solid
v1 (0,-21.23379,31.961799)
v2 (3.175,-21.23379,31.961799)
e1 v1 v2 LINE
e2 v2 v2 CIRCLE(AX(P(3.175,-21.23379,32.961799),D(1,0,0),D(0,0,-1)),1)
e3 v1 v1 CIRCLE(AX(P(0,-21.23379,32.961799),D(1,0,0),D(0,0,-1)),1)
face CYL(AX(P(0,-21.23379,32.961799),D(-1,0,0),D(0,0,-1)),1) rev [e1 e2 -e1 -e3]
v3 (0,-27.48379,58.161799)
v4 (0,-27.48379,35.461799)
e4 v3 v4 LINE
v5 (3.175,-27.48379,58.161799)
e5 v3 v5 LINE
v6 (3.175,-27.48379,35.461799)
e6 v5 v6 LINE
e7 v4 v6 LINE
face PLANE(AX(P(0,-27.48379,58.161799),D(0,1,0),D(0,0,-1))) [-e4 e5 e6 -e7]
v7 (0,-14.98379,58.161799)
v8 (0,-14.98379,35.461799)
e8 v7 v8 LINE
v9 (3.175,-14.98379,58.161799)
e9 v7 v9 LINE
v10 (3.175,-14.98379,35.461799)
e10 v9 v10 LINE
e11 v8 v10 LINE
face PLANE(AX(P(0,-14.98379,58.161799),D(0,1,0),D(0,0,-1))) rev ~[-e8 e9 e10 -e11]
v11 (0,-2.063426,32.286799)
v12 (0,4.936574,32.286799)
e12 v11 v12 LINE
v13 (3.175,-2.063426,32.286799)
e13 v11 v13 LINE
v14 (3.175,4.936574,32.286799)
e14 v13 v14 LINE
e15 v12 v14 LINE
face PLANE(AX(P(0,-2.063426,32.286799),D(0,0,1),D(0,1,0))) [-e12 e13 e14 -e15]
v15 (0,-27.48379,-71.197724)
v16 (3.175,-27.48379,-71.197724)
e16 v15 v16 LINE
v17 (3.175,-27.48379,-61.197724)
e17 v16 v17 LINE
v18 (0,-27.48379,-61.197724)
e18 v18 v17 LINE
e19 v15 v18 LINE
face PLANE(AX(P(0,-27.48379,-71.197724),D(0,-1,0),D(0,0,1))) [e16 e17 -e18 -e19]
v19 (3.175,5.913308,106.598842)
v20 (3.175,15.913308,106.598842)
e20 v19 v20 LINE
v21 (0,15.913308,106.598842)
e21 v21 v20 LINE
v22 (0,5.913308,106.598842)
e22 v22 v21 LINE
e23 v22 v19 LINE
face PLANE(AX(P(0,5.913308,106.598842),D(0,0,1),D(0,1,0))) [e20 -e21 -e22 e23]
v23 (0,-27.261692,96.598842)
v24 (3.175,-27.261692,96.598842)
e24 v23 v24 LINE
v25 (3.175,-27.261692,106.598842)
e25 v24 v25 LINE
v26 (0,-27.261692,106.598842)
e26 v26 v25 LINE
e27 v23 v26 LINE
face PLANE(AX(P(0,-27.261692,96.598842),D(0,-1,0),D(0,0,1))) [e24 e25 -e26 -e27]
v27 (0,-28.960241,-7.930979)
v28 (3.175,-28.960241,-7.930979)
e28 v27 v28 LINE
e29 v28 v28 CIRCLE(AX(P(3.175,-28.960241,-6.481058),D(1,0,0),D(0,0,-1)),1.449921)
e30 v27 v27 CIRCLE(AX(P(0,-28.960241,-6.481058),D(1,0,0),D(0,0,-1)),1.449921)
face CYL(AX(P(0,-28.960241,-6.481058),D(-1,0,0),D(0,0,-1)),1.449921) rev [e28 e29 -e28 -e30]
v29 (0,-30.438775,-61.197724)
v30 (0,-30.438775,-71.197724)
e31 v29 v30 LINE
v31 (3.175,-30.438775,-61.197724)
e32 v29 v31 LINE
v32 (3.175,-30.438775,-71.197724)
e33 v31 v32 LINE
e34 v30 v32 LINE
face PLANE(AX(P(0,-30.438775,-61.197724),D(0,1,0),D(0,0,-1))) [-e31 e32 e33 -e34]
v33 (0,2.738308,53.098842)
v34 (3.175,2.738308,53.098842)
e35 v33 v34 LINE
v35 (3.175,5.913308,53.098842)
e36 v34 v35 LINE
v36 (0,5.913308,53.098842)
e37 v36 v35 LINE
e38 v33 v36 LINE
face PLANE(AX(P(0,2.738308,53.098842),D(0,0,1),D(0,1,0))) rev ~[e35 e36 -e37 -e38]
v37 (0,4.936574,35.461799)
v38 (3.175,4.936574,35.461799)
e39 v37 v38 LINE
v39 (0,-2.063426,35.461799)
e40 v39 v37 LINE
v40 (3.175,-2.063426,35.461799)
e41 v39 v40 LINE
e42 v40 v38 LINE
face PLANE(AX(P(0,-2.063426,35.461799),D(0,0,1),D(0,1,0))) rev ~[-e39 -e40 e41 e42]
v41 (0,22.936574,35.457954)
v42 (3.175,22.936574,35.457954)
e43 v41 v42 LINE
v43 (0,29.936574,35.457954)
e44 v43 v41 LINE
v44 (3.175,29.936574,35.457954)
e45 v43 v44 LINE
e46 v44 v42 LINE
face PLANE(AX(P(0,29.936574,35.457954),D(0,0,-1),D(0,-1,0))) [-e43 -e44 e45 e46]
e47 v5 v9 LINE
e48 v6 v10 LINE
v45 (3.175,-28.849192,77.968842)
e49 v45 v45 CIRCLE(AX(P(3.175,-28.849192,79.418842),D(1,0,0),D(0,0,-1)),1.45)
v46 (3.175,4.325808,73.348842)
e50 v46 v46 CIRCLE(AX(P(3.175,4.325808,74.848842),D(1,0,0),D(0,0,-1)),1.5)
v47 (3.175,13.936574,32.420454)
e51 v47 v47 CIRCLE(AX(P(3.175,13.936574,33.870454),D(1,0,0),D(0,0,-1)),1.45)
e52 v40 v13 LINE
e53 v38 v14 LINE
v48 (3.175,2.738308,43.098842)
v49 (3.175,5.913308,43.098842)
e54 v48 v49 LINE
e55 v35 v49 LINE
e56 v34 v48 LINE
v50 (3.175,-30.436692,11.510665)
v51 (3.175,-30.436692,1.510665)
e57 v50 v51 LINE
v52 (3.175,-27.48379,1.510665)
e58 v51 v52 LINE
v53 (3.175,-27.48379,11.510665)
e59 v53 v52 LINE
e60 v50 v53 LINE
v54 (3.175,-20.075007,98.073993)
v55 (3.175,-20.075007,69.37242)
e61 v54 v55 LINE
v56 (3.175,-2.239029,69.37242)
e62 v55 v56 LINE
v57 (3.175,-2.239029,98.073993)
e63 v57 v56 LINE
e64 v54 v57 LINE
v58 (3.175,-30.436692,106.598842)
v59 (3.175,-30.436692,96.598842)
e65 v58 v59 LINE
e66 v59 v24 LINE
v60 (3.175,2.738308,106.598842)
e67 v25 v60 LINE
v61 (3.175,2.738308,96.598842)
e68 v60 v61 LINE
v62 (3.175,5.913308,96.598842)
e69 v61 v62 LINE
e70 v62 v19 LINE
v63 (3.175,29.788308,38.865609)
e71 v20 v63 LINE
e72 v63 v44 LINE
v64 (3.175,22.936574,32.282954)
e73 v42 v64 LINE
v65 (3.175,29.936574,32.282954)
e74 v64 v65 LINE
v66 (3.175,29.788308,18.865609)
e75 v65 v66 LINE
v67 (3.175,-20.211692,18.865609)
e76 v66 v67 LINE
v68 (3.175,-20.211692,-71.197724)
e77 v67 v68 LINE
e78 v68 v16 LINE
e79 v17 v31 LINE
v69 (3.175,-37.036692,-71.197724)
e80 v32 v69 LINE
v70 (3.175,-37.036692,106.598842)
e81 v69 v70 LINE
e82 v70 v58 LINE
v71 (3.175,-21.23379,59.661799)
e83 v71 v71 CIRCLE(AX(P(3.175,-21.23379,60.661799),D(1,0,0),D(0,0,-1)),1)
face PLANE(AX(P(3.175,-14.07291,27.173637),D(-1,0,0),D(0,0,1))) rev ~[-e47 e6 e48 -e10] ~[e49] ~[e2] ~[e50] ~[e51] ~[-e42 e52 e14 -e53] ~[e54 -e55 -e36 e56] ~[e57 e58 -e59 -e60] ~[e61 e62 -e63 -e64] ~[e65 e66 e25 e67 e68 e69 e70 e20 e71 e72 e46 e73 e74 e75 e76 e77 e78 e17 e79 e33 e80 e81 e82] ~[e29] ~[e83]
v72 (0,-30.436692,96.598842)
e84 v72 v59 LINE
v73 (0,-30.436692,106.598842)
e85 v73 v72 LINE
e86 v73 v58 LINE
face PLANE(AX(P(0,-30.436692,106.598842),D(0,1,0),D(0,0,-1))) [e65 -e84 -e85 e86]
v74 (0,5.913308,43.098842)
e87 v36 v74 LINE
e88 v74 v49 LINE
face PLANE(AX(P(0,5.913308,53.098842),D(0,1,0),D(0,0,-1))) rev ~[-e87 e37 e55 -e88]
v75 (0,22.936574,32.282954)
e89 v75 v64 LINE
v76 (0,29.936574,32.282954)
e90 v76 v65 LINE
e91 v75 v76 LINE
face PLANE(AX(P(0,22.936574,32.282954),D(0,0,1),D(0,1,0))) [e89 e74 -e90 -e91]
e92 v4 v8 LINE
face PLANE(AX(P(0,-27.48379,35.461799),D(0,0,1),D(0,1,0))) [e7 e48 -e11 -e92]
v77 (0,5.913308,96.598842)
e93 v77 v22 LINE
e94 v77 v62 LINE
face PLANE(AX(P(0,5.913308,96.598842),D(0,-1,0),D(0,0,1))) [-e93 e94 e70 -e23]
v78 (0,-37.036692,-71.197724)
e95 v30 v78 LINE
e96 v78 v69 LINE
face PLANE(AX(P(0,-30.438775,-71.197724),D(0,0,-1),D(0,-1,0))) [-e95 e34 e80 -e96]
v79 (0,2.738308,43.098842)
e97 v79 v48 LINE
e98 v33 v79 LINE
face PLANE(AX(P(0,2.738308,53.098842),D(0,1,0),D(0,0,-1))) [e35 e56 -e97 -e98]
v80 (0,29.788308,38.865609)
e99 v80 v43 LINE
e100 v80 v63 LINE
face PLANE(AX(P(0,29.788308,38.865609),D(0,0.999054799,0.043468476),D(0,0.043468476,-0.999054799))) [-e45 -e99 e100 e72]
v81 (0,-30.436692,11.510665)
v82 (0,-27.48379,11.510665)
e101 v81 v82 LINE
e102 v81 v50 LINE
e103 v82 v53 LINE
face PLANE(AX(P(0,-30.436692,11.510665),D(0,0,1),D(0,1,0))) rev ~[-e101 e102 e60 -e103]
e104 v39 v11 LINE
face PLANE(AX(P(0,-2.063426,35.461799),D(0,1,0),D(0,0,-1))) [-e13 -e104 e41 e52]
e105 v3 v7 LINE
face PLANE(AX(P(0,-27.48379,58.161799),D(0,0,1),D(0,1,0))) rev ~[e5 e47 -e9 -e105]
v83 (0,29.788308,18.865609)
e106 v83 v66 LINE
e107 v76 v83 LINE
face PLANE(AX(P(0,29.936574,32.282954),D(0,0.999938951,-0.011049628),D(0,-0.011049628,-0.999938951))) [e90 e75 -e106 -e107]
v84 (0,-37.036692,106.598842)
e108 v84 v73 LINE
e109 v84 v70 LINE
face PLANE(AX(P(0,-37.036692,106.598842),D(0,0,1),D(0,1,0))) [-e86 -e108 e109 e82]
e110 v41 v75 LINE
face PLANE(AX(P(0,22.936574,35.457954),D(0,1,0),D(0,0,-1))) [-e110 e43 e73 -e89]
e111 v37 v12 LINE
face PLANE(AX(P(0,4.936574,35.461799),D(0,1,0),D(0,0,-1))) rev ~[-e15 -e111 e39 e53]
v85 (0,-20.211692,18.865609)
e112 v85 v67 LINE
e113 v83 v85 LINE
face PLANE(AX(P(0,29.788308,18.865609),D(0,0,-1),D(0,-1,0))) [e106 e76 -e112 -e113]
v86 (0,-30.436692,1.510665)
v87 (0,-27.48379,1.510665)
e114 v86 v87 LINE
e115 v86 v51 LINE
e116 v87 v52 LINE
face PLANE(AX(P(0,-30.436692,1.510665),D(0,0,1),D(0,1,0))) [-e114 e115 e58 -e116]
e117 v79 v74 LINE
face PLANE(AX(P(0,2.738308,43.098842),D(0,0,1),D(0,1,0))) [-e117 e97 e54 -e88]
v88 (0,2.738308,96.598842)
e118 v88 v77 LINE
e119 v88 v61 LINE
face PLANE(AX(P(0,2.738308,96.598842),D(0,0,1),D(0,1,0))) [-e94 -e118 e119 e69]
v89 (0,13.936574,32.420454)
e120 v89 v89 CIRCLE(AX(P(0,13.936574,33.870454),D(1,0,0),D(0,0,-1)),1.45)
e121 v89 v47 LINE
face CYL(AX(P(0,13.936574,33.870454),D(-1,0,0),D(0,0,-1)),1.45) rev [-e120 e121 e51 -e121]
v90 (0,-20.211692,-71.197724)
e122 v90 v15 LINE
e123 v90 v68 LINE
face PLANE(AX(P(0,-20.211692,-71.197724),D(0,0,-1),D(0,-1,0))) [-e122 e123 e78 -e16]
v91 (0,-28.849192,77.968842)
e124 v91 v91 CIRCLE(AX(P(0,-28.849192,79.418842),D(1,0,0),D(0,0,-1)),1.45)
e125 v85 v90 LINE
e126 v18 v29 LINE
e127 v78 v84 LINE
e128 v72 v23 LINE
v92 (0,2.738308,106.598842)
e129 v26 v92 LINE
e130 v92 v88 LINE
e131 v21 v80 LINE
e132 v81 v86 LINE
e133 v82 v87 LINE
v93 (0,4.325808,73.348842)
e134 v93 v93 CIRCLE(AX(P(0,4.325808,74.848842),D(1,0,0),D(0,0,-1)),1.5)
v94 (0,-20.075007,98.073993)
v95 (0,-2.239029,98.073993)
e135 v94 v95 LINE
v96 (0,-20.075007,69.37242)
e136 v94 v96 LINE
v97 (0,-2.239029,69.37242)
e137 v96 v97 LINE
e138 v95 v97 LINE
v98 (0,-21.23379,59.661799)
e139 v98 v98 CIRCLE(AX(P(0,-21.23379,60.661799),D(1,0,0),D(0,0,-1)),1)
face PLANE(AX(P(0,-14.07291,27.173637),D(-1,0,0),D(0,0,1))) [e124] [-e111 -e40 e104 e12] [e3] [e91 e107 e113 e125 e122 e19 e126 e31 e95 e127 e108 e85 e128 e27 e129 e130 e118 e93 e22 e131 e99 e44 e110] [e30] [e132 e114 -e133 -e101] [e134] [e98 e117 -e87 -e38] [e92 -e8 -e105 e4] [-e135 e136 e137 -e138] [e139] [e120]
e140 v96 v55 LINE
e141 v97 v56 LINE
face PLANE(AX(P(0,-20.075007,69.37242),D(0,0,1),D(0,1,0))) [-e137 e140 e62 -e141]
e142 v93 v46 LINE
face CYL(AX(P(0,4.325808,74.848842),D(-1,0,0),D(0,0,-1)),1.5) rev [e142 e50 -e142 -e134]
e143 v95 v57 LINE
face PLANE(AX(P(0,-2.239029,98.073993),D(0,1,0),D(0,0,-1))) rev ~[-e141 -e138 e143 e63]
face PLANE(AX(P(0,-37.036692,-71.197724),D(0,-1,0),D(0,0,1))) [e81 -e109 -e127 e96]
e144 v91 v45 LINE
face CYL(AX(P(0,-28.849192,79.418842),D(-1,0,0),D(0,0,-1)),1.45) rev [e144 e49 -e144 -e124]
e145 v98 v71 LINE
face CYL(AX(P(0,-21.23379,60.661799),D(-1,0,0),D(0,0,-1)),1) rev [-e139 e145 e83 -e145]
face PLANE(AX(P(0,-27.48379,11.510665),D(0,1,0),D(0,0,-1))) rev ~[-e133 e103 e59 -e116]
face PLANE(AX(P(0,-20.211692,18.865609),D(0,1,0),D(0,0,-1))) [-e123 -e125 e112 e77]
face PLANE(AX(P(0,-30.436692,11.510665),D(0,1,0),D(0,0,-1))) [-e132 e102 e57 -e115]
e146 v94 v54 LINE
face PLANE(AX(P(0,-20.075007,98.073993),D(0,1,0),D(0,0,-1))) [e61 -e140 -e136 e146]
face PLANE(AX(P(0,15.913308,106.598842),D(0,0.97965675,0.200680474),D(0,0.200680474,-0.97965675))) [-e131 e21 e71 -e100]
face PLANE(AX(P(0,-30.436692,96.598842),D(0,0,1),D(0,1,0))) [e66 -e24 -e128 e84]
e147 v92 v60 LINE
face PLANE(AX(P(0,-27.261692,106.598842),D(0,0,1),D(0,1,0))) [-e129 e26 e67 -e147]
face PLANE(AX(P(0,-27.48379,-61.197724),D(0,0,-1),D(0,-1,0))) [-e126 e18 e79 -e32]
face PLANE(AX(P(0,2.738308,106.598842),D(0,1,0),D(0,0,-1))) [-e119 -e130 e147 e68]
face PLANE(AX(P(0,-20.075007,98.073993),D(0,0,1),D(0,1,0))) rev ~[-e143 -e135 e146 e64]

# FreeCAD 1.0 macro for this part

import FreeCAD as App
import Part
import Sketcher
from FreeCAD import Vector
Q = App.Units.Quantity

doc = App.newDocument("Part")
body = doc.addObject("PartDesign::Body", "Body")

sketch1 = doc.addObject("Sketcher::SketchObject", "Sketch")
body.addObject(sketch1)
sketch1.AttachmentSupport = (doc.YZ_Plane, [""])
sketch1.MapMode = "FlatFace"
sketch1.addGeometry([
    Part.LineSegment(Vector(-37.036692, -71.197724, 0), Vector(-30.438775, -71.197724, 0)),
    Part.LineSegment(Vector(-30.438775, -71.197724, 0), Vector(-30.438775, -61.197724, 0)),
    Part.LineSegment(Vector(-30.438775, -61.197724, 0), Vector(-27.48379, -61.197724, 0)),
    Part.LineSegment(Vector(-27.48379, -61.197724, 0), Vector(-27.48379, -71.197724, 0)),
    Part.LineSegment(Vector(-27.48379, -71.197724, 0), Vector(-20.211692, -71.197724, 0)),
    Part.LineSegment(Vector(-20.211692, -71.197724, 0), Vector(-20.211692, 18.865609, 0)),
    Part.LineSegment(Vector(-20.211692, 18.865609, 0), Vector(29.788308, 18.865609, 0)),
    Part.LineSegment(Vector(29.788308, 18.865609, 0), Vector(29.936574, 32.282954, 0)),
    Part.LineSegment(Vector(29.936574, 32.282954, 0), Vector(22.936574, 32.282954, 0)),
    Part.LineSegment(Vector(22.936574, 32.282954, 0), Vector(22.936574, 35.457954, 0)),
    Part.LineSegment(Vector(22.936574, 35.457954, 0), Vector(29.936574, 35.457954, 0)),
    Part.LineSegment(Vector(29.936574, 35.457954, 0), Vector(29.788308, 38.865609, 0)),
    Part.LineSegment(Vector(29.788308, 38.865609, 0), Vector(15.913308, 106.598842, 0)),
    Part.LineSegment(Vector(15.913308, 106.598842, 0), Vector(5.913308, 106.598842, 0)),
    Part.LineSegment(Vector(5.913308, 106.598842, 0), Vector(5.913308, 96.598842, 0)),
    Part.LineSegment(Vector(5.913308, 96.598842, 0), Vector(2.738308, 96.598842, 0)),
    Part.LineSegment(Vector(2.738308, 96.598842, 0), Vector(2.738308, 106.598842, 0)),
    Part.LineSegment(Vector(2.738308, 106.598842, 0), Vector(-27.261692, 106.598842, 0)),
    Part.LineSegment(Vector(-27.261692, 106.598842, 0), Vector(-27.261692, 96.598842, 0)),
    Part.LineSegment(Vector(-27.261692, 96.598842, 0), Vector(-30.436692, 96.598842, 0)),
    Part.LineSegment(Vector(-30.436692, 96.598842, 0), Vector(-30.436692, 106.598842, 0)),
    Part.LineSegment(Vector(-30.436692, 106.598842, 0), Vector(-37.036692, 106.598842, 0)),
    Part.LineSegment(Vector(-37.036692, 106.598842, 0), Vector(-37.036692, -71.197724, 0)),
    Part.Circle(Vector(-28.960241, -6.481058, 0), Vector(0, 0, 1), 1.449921),
    Part.LineSegment(Vector(-30.436692, 11.510665, 0), Vector(-27.48379, 11.510665, 0)),
    Part.LineSegment(Vector(-27.48379, 11.510665, 0), Vector(-27.48379, 1.510665, 0)),
    Part.LineSegment(Vector(-27.48379, 1.510665, 0), Vector(-30.436692, 1.510665, 0)),
    Part.LineSegment(Vector(-30.436692, 1.510665, 0), Vector(-30.436692, 11.510665, 0)),
    Part.Circle(Vector(-21.23379, 32.961799, 0), Vector(0, 0, 1), 1),
    Part.LineSegment(Vector(-27.48379, 58.161799, 0), Vector(-14.98379, 58.161799, 0)),
    Part.LineSegment(Vector(-14.98379, 58.161799, 0), Vector(-14.98379, 35.461799, 0)),
    Part.LineSegment(Vector(-14.98379, 35.461799, 0), Vector(-27.48379, 35.461799, 0)),
    Part.LineSegment(Vector(-27.48379, 35.461799, 0), Vector(-27.48379, 58.161799, 0)),
    Part.Circle(Vector(-21.23379, 60.661799, 0), Vector(0, 0, 1), 1),
    Part.Circle(Vector(-28.849192, 79.418842, 0), Vector(0, 0, 1), 1.45),
    Part.LineSegment(Vector(-20.075007, 98.073993, 0), Vector(-2.239029, 98.073993, 0)),
    Part.LineSegment(Vector(-2.239029, 98.073993, 0), Vector(-2.239029, 69.37242, 0)),
    Part.LineSegment(Vector(-2.239029, 69.37242, 0), Vector(-20.075007, 69.37242, 0)),
    Part.LineSegment(Vector(-20.075007, 69.37242, 0), Vector(-20.075007, 98.073993, 0)),
    Part.LineSegment(Vector(-2.063426, 35.461799, 0), Vector(4.936574, 35.461799, 0)),
    Part.LineSegment(Vector(4.936574, 35.461799, 0), Vector(4.936574, 32.286799, 0)),
    Part.LineSegment(Vector(4.936574, 32.286799, 0), Vector(-2.063426, 32.286799, 0)),
    Part.LineSegment(Vector(-2.063426, 32.286799, 0), Vector(-2.063426, 35.461799, 0)),
    Part.Circle(Vector(13.936574, 33.870454, 0), Vector(0, 0, 1), 1.45),
    Part.LineSegment(Vector(2.738308, 53.098842, 0), Vector(5.913308, 53.098842, 0)),
    Part.LineSegment(Vector(5.913308, 53.098842, 0), Vector(5.913308, 43.098842, 0)),
    Part.LineSegment(Vector(5.913308, 43.098842, 0), Vector(2.738308, 43.098842, 0)),
    Part.LineSegment(Vector(2.738308, 43.098842, 0), Vector(2.738308, 53.098842, 0)),
    Part.Circle(Vector(4.325808, 74.848842, 0), Vector(0, 0, 1), 1.5),
], False)
sketch1.addConstraint([
    Sketcher.Constraint("Coincident", 0, 2, 1, 1),
    Sketcher.Constraint("Coincident", 1, 2, 2, 1),
    Sketcher.Constraint("Coincident", 2, 2, 3, 1),
    Sketcher.Constraint("Coincident", 3, 2, 4, 1),
    Sketcher.Constraint("Coincident", 4, 2, 5, 1),
    Sketcher.Constraint("Coincident", 5, 2, 6, 1),
    Sketcher.Constraint("Coincident", 6, 2, 7, 1),
    Sketcher.Constraint("Coincident", 7, 2, 8, 1),
    Sketcher.Constraint("Coincident", 8, 2, 9, 1),
    Sketcher.Constraint("Coincident", 9, 2, 10, 1),
    Sketcher.Constraint("Coincident", 10, 2, 11, 1),
    Sketcher.Constraint("Coincident", 11, 2, 12, 1),
    Sketcher.Constraint("Coincident", 12, 2, 13, 1),
    Sketcher.Constraint("Coincident", 13, 2, 14, 1),
    Sketcher.Constraint("Coincident", 14, 2, 15, 1),
    Sketcher.Constraint("Coincident", 15, 2, 16, 1),
    Sketcher.Constraint("Coincident", 16, 2, 17, 1),
    Sketcher.Constraint("Coincident", 17, 2, 18, 1),
    Sketcher.Constraint("Coincident", 18, 2, 19, 1),
    Sketcher.Constraint("Coincident", 19, 2, 20, 1),
    Sketcher.Constraint("Coincident", 20, 2, 21, 1),
    Sketcher.Constraint("Coincident", 21, 2, 22, 1),
    Sketcher.Constraint("Coincident", 22, 2, 0, 1),
    Sketcher.Constraint("Coincident", 24, 2, 25, 1),
    Sketcher.Constraint("Coincident", 25, 2, 26, 1),
    Sketcher.Constraint("Coincident", 26, 2, 27, 1),
    Sketcher.Constraint("Coincident", 27, 2, 24, 1),
    Sketcher.Constraint("Coincident", 29, 2, 30, 1),
    Sketcher.Constraint("Coincident", 30, 2, 31, 1),
    Sketcher.Constraint("Coincident", 31, 2, 32, 1),
    Sketcher.Constraint("Coincident", 32, 2, 29, 1),
    Sketcher.Constraint("Coincident", 35, 2, 36, 1),
    Sketcher.Constraint("Coincident", 36, 2, 37, 1),
    Sketcher.Constraint("Coincident", 37, 2, 38, 1),
    Sketcher.Constraint("Coincident", 38, 2, 35, 1),
    Sketcher.Constraint("Coincident", 39, 2, 40, 1),
    Sketcher.Constraint("Coincident", 40, 2, 41, 1),
    Sketcher.Constraint("Coincident", 41, 2, 42, 1),
    Sketcher.Constraint("Coincident", 42, 2, 39, 1),
    Sketcher.Constraint("Coincident", 44, 2, 45, 1),
    Sketcher.Constraint("Coincident", 45, 2, 46, 1),
    Sketcher.Constraint("Coincident", 46, 2, 47, 1),
    Sketcher.Constraint("Coincident", 47, 2, 44, 1),
    Sketcher.Constraint("Horizontal", 0),
    Sketcher.Constraint("Vertical", 1),
    Sketcher.Constraint("Horizontal", 2),
    Sketcher.Constraint("Vertical", 3),
    Sketcher.Constraint("Horizontal", 4),
    Sketcher.Constraint("Vertical", 5),
    Sketcher.Constraint("Horizontal", 6),
    Sketcher.Constraint("Horizontal", 8),
    Sketcher.Constraint("Vertical", 9),
    Sketcher.Constraint("Horizontal", 10),
    Sketcher.Constraint("Horizontal", 13),
    Sketcher.Constraint("Vertical", 14),
    Sketcher.Constraint("Horizontal", 15),
    Sketcher.Constraint("Vertical", 16),
    Sketcher.Constraint("Horizontal", 17),
    Sketcher.Constraint("Vertical", 18),
    Sketcher.Constraint("Horizontal", 19),
    Sketcher.Constraint("Vertical", 20),
    Sketcher.Constraint("Horizontal", 21),
    Sketcher.Constraint("Vertical", 22),
    Sketcher.Constraint("Horizontal", 24),
    Sketcher.Constraint("Vertical", 25),
    Sketcher.Constraint("Horizontal", 26),
    Sketcher.Constraint("Vertical", 27),
    Sketcher.Constraint("Horizontal", 29),
    Sketcher.Constraint("Vertical", 30),
    Sketcher.Constraint("Horizontal", 31),
    Sketcher.Constraint("Vertical", 32),
    Sketcher.Constraint("Horizontal", 35),
    Sketcher.Constraint("Vertical", 36),
    Sketcher.Constraint("Horizontal", 37),
    Sketcher.Constraint("Vertical", 38),
    Sketcher.Constraint("Horizontal", 39),
    Sketcher.Constraint("Vertical", 40),
    Sketcher.Constraint("Horizontal", 41),
    Sketcher.Constraint("Vertical", 42),
    Sketcher.Constraint("Horizontal", 44),
    Sketcher.Constraint("Vertical", 45),
    Sketcher.Constraint("Horizontal", 46),
    Sketcher.Constraint("Vertical", 47),
    Sketcher.Constraint("Equal", 28, 33),
    Sketcher.Constraint("Equal", 34, 43),
    Sketcher.Constraint("Horizontal", 0, 2, 3, 2),
    Sketcher.Constraint("Horizontal", 13, 2, 16, 2),
    Sketcher.Constraint("Horizontal", 15, 2, 18, 2),
    Sketcher.Constraint("Horizontal", 17, 2, 20, 2),
    Sketcher.Constraint("Horizontal", 31, 2, 39, 2),
    Sketcher.Constraint("Vertical", 28, 3, 33, 3),
    Sketcher.Constraint("Vertical", 7, 2, 10, 2),
    Sketcher.Constraint("Vertical", 6, 2, 11, 2),
    Sketcher.Constraint("Vertical", 3, 2, 24, 2),
    Sketcher.Constraint("Vertical", 20, 2, 26, 2),
    Sketcher.Constraint("Vertical", 25, 2, 31, 2),
    Sketcher.Constraint("Vertical", 14, 2, 44, 2),
    Sketcher.Constraint("Vertical", 16, 2, 46, 2),
    Sketcher.Constraint("Equal", 15, 19),
    Sketcher.Constraint("Equal", 10, 39),
    Sketcher.Constraint("Equal", 13, 1),
    Sketcher.Constraint("Equal", 46, 9),
    Sketcher.Constraint("Equal", 3, 14),
    Sketcher.Constraint("Equal", 20, 25),
    Sketcher.Constraint("Equal", 9, 40),
    Sketcher.Constraint("Equal", 27, 45),
    Sketcher.Constraint("Diameter", 28, Q("2 mm")),
    Sketcher.Constraint("Diameter", 48, Q("3 mm")),
    Sketcher.Constraint("Diameter", 34, Q("2.9 mm")),
    Sketcher.Constraint("DistanceX", 6, 1, 6, 2, Q("50 mm")),
    Sketcher.Constraint("DistanceX", 8, 2, 8, 1, Q("7 mm")),
    Sketcher.Constraint("DistanceX", 13, 2, 13, 1, Q("10 mm")),
    Sketcher.Constraint("DistanceX", 17, 2, 17, 1, Q("30 mm")),
    Sketcher.Constraint("DistanceX", 21, 2, 21, 1, Q("6.6 mm")),
    Sketcher.Constraint("DistanceX", 29, 1, 29, 2, Q("12.5 mm")),
    Sketcher.Constraint("DistanceY", 30, 2, 30, 1, Q("22.7 mm")),
    Sketcher.Constraint("DistanceX", 43, 3, 7, 2, Q("16 mm")),
    Sketcher.Constraint("DistanceX", 39, 2, 43, 3, Q("9 mm")),
    Sketcher.Constraint("DistanceY", 28, 3, 33, 3, Q("27.7 mm")),
    Sketcher.Constraint("DistanceY", 29, 2, 33, 3, Q("2.5 mm")),
    Sketcher.Constraint("DistanceX", 15, 2, 15, 1, Q("3.175 mm")),
    Sketcher.Constraint("DistanceY", 48, 3, 34, 3, Q("4.57 mm")),
    Sketcher.Constraint("DistanceX", 2, 2, 28, 3, Q("6.25 mm")),
    Sketcher.Constraint("DistanceY", 48, 3, 12, 2, Q("31.75 mm")),
    Sketcher.Constraint("Diameter", 23, Q("2.899842 mm")),
    Sketcher.Constraint("DistanceX", 34, 3, 48, 3, Q("33.175 mm")),
    Sketcher.Constraint("DistanceX", 12, 2, 11, 2, Q("13.875 mm")),
    Sketcher.Constraint("DistanceY", -1, 1, 28, 3, Q("32.961799 mm")),
    Sketcher.Constraint("DistanceY", 23, 3, 34, 3, Q("85.8999 mm")),
    Sketcher.Constraint("DistanceX", 5, 2, 48, 3, Q("24.5375 mm")),
    Sketcher.Constraint("DistanceY", 7, 2, 43, 3, Q("1.5875 mm")),
    Sketcher.Constraint("Distance", 11, Q("3.410879 mm")),
    Sketcher.Constraint("Distance", 12, Q("69.139761 mm")),
    Sketcher.Constraint("DistanceX", 0, 1, 0, 2, Q("6.597918 mm")),
    Sketcher.Constraint("DistanceX", 2, 1, 2, 2, Q("2.954985 mm")),
    Sketcher.Constraint("DistanceX", 35, 1, 35, 2, Q("17.835977 mm")),
    Sketcher.Constraint("DistanceY", 5, 1, 5, 2, Q("90.063333 mm")),
    Sketcher.Constraint("DistanceY", 22, 2, 22, 1, Q("177.796567 mm")),
    Sketcher.Constraint("DistanceY", 36, 2, 36, 1, Q("28.701573 mm")),
    Sketcher.Constraint("DistanceX", 23, 3, -1, 1, Q("28.960241 mm")),
    Sketcher.Constraint("DistanceX", 28, 3, -1, 1, Q("21.23379 mm")),
    Sketcher.Constraint("DistanceY", -1, 1, 5, 2, Q("18.865609 mm")),
    Sketcher.Constraint("DistanceX", 35, 2, -1, 1, Q("2.239029 mm")),
    Sketcher.Constraint("DistanceY", -1, 1, 36, 2, Q("69.37242 mm")),
    Sketcher.Constraint("DistanceY", 23, 3, 43, 3, Q("40.351512 mm")),
    Sketcher.Constraint("DistanceY", 24, 2, 43, 3, Q("22.359789 mm")),
    Sketcher.Constraint("DistanceY", 43, 3, 44, 2, Q("19.228388 mm")),
])
pad1 = doc.addObject("PartDesign::Pad", "Pad")
body.addObject(pad1)
pad1.Profile = sketch1
pad1.Length = 3.175

doc.recompute()
